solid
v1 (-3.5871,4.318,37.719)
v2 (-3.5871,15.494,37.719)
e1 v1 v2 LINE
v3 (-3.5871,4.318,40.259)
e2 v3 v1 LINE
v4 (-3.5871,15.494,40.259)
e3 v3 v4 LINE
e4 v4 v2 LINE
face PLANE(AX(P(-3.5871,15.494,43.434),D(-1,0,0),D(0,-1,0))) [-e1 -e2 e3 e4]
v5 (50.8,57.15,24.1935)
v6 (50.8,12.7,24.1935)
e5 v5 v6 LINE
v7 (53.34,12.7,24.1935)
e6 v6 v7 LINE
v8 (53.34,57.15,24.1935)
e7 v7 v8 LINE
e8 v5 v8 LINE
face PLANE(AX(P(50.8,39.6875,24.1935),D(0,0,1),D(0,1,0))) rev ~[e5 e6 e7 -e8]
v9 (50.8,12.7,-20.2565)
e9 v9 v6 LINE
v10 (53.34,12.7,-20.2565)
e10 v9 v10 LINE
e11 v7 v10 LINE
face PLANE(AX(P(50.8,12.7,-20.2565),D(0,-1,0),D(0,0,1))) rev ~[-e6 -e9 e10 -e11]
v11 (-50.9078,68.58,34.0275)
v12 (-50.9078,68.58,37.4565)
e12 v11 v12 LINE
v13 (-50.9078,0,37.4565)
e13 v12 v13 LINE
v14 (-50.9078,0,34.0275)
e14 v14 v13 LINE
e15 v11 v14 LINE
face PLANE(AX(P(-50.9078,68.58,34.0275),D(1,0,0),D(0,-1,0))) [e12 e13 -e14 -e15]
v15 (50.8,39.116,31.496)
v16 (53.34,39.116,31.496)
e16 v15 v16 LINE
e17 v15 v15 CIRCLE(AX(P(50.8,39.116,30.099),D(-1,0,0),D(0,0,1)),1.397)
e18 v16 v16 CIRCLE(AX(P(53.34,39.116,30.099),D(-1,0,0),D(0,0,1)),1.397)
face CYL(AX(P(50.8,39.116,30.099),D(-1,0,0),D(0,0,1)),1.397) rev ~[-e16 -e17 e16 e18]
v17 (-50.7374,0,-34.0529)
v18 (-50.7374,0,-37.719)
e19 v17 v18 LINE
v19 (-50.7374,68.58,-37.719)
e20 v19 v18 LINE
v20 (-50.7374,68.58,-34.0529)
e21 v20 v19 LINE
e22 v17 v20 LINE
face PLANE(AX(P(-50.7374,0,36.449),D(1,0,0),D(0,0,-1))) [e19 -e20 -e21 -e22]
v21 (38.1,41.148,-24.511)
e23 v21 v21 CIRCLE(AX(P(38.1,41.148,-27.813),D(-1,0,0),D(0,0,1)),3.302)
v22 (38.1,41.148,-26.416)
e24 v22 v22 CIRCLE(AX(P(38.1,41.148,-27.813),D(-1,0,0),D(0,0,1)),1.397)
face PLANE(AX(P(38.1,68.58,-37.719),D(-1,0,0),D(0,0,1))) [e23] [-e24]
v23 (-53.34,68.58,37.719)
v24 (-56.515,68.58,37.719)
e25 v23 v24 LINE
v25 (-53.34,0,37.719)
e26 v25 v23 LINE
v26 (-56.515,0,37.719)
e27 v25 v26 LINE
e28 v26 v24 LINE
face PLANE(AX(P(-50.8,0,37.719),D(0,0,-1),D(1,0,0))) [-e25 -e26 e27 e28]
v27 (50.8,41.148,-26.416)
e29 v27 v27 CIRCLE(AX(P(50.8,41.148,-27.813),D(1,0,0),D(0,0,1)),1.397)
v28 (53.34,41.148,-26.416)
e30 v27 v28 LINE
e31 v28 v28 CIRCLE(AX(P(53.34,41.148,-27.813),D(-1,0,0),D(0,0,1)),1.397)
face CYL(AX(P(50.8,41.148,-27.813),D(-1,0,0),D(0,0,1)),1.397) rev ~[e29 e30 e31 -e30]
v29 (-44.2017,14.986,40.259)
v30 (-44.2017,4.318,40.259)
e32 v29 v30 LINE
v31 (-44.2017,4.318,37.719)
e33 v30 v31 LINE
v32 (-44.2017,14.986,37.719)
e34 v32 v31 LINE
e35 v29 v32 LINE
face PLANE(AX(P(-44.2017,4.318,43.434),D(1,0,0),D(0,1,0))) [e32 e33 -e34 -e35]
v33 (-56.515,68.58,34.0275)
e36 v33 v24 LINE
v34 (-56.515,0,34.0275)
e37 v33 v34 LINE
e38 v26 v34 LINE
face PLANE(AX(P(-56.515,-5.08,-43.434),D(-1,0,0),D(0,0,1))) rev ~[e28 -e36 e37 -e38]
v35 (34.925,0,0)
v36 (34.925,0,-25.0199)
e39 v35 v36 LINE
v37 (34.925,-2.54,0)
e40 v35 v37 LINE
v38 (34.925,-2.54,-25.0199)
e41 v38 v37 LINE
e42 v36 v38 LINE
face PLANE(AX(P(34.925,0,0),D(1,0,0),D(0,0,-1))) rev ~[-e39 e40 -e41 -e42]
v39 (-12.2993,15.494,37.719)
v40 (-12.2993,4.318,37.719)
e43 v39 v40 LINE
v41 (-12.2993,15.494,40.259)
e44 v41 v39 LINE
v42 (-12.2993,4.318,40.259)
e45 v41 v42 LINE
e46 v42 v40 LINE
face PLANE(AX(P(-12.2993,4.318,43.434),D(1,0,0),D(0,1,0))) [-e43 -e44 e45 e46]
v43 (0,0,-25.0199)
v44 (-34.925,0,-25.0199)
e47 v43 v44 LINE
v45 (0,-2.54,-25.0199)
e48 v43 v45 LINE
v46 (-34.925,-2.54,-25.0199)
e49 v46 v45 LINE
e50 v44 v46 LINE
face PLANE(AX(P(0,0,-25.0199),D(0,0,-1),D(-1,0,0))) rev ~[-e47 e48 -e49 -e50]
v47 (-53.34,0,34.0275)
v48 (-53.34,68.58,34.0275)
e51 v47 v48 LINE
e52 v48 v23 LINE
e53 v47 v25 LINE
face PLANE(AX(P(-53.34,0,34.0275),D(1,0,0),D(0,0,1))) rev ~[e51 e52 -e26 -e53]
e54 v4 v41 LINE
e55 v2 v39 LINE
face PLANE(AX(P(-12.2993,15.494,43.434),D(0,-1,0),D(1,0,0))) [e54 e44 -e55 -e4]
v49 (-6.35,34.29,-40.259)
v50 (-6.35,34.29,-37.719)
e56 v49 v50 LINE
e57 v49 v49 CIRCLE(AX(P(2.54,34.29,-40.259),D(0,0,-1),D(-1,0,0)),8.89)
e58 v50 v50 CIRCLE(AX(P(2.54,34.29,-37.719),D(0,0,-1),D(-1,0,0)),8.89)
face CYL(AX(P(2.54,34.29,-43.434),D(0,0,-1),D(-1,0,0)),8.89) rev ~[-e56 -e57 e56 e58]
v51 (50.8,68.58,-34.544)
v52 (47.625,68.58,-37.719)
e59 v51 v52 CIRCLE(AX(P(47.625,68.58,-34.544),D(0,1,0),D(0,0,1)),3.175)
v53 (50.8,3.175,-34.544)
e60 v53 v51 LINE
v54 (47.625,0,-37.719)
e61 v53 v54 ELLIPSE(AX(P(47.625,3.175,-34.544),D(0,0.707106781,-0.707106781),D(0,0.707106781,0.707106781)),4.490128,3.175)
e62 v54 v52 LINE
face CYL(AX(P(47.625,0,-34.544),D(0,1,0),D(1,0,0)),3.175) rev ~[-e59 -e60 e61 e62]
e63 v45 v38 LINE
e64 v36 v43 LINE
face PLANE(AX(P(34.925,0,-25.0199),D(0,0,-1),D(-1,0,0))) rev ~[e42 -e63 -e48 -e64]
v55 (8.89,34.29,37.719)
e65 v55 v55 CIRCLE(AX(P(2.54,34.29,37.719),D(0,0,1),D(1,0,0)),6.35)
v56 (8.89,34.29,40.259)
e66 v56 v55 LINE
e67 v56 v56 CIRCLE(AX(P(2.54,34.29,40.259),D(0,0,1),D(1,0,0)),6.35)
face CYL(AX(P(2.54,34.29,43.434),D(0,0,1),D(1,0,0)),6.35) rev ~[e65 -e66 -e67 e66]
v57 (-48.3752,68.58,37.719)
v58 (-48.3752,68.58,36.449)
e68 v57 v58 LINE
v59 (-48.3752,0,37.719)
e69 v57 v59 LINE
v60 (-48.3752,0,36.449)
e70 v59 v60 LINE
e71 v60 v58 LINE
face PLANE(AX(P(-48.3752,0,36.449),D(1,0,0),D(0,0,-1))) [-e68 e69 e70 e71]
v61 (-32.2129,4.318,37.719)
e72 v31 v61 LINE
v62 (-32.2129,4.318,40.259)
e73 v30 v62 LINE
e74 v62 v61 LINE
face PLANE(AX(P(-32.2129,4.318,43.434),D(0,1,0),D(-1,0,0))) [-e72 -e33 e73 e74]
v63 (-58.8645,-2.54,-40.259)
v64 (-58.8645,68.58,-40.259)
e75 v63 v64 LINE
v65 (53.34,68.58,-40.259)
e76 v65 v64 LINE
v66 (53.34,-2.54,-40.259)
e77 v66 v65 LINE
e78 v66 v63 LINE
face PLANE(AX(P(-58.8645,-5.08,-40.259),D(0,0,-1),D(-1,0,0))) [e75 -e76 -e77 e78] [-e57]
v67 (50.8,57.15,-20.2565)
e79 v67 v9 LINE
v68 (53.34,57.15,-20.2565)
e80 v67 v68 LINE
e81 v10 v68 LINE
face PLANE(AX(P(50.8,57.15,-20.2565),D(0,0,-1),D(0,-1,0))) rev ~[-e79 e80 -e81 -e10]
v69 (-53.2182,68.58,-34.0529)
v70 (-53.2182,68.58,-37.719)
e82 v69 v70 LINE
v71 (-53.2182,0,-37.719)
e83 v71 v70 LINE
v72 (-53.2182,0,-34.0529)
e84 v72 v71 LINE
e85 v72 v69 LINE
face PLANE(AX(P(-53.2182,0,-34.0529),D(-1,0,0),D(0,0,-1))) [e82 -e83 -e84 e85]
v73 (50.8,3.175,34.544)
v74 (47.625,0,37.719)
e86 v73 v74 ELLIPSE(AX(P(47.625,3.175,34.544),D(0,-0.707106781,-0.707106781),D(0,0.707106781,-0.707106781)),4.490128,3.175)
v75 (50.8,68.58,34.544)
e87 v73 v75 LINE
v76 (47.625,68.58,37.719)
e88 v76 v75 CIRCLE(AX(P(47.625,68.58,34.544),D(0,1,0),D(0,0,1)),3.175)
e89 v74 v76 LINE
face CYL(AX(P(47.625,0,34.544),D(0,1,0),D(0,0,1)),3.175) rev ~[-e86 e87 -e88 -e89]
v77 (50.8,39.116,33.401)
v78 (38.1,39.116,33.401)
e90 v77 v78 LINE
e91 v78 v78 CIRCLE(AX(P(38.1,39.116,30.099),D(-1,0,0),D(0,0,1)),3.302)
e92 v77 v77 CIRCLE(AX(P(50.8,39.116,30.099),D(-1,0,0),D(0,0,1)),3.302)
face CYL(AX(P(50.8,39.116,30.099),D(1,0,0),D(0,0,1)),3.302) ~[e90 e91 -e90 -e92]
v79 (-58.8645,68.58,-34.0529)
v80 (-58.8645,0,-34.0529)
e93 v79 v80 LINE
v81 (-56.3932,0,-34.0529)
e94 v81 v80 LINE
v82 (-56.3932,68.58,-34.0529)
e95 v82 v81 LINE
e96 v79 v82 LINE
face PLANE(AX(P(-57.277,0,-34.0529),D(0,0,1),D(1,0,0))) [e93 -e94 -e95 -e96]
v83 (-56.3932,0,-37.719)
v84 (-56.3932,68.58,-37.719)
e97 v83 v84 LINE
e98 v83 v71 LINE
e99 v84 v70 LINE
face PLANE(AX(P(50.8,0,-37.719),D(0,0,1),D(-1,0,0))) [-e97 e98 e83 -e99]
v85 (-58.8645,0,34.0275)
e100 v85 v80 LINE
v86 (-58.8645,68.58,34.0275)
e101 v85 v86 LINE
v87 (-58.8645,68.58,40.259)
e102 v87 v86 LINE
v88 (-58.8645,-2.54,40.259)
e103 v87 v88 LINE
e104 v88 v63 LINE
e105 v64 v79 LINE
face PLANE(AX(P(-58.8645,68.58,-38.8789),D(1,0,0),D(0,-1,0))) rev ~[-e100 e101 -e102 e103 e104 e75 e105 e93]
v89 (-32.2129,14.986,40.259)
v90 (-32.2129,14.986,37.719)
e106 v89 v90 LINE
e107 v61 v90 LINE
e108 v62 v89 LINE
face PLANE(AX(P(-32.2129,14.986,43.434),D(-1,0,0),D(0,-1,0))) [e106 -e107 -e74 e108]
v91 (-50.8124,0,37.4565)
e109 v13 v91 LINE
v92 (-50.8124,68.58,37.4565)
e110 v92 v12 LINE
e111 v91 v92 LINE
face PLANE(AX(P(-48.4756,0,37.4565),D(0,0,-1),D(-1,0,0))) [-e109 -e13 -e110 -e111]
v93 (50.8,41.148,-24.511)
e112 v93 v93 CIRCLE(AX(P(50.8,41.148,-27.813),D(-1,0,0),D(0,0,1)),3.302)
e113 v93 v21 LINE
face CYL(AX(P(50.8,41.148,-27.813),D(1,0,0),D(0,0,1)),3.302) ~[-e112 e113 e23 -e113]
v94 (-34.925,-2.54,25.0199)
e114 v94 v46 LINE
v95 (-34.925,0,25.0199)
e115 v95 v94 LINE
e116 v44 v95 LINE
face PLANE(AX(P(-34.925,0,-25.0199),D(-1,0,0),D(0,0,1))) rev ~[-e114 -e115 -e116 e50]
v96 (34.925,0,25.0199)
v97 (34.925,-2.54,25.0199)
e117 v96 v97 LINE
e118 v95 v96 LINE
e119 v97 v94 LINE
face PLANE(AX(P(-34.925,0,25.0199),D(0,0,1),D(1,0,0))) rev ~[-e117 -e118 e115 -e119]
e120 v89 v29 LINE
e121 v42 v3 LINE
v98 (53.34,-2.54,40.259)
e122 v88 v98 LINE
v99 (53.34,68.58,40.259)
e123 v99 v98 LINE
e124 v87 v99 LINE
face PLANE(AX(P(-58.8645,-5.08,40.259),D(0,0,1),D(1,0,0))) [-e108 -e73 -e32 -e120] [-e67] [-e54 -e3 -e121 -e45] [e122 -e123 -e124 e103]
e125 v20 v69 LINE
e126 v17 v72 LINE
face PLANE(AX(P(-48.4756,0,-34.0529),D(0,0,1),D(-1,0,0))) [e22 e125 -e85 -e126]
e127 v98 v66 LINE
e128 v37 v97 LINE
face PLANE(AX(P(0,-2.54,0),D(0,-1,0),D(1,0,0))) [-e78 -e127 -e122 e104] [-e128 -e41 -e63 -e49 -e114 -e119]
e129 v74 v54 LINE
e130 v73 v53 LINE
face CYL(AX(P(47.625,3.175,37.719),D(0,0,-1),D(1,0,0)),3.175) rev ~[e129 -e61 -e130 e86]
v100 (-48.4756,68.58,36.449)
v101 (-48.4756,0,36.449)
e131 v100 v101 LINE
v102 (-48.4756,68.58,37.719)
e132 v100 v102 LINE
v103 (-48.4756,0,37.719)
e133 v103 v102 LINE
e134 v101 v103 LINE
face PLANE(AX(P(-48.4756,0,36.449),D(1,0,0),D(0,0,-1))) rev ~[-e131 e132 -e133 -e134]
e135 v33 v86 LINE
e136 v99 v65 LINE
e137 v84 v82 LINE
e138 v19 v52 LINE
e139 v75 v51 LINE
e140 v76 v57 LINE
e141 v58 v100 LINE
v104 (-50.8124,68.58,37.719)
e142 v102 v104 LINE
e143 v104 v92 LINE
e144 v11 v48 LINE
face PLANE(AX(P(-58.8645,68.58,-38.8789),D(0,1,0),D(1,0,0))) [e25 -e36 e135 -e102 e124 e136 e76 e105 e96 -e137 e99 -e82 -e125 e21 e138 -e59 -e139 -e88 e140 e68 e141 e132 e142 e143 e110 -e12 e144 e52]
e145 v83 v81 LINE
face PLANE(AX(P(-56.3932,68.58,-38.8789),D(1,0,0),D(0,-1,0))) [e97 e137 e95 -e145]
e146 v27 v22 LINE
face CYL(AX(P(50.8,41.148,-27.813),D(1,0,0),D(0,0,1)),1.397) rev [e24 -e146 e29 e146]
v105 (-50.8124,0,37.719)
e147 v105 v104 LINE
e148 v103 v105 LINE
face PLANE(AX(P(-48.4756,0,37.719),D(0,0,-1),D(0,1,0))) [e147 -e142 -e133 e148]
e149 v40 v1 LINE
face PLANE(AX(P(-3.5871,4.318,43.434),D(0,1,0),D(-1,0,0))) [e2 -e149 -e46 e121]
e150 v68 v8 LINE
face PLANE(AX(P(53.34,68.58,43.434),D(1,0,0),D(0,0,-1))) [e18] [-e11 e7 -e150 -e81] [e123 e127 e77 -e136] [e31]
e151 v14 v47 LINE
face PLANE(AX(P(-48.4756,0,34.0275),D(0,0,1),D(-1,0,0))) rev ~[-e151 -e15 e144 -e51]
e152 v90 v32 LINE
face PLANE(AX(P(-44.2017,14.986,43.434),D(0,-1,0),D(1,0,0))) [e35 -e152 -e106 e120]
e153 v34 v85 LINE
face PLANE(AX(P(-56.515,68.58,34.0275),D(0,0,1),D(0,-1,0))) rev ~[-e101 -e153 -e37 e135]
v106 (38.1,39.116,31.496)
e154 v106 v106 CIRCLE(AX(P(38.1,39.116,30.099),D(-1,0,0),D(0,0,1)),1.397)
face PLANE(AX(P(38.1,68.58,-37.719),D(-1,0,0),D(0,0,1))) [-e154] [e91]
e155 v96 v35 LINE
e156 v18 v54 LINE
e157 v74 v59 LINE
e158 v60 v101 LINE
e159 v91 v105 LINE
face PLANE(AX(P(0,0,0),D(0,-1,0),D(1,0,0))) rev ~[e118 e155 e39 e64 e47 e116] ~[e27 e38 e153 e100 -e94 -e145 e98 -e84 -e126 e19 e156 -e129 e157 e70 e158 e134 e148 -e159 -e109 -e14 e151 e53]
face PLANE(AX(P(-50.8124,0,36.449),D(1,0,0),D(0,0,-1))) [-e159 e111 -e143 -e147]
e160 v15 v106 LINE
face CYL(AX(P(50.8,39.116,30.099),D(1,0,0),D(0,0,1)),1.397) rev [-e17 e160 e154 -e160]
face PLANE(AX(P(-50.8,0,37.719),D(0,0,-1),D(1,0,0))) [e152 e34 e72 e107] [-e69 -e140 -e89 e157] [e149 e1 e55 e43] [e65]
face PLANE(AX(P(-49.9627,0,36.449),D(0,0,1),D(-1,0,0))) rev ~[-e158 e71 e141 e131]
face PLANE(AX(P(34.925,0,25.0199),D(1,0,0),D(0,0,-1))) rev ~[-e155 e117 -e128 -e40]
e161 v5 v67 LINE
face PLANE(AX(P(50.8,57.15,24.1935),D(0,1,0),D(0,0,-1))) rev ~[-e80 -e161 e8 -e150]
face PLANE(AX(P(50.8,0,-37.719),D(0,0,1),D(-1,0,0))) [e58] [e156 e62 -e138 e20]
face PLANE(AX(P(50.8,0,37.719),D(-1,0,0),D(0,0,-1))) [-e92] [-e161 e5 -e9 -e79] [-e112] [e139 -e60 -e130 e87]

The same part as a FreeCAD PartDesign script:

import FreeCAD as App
import Part
import Sketcher
Q = App.Units.Quantity


def edges_at(feature, points):
    """Names of the edges that pass closest to the given points."""
    edges = feature.Shape.Edges
    near = lambda p: min(range(len(edges)), key=lambda i: edges[i].distToShape(Part.Vertex(*p))[0])
    return sorted({f"Edge{near(p) + 1}" for p in points})


def add_polygon(sketch, points):
    """Adds a closed chain of lines whose ends are joined by coincident constraints."""
    first, n = sketch.GeometryCount, len(points)
    for a, b in zip(points, points[1:] + points[:1]):
        sketch.addGeometry(Part.LineSegment(App.Vector(*a, 0), App.Vector(*b, 0)), False)
    for i in range(n):
        sketch.addConstraint(Sketcher.Constraint("Coincident", first + i, 2, first + (i + 1) % n, 1))

doc = App.newDocument("Part")
body = doc.addObject("PartDesign::Body", "Body")

sketch1 = body.newObject("Sketcher::SketchObject", "Sketch")
sketch1.AttachmentSupport = (doc.getObject("XZ_Plane"), [""])
sketch1.MapMode = "FlatFace"
add_polygon(sketch1, [(-57, -43), (-57, 43), (57, 43), (57, -43)])
add_polygon(sketch1, [(51, 38), (-51, 38), (-51, -38), (51, -38)])
sketch1.addConstraint(Sketcher.Constraint("Vertical", 0))
sketch1.addConstraint(Sketcher.Constraint("Horizontal", 1))
sketch1.addConstraint(Sketcher.Constraint("Vertical", 2))
sketch1.addConstraint(Sketcher.Constraint("Horizontal", 3))
sketch1.addConstraint(Sketcher.Constraint("Horizontal", 4))
sketch1.addConstraint(Sketcher.Constraint("Vertical", 5))
sketch1.addConstraint(Sketcher.Constraint("Horizontal", 6))
sketch1.addConstraint(Sketcher.Constraint("Vertical", 7))
sketch1.addConstraint(Sketcher.Constraint("Symmetric", 0, 2, 2, 2, -1, 1))
sketch1.addConstraint(Sketcher.Constraint("Symmetric", 4, 2, 6, 2, -1, 1))
sketch1.addConstraint(Sketcher.Constraint("DistanceX", 4, 2, 4, 1, Q("4 in")))
sketch1.addConstraint(Sketcher.Constraint("DistanceX", 1, 1, 1, 2, Q("4.45 in")))
sketch1.addConstraint(Sketcher.Constraint("DistanceY", 0, 1, 0, 2, Q("3.42 in")))
sketch1.addConstraint(Sketcher.Constraint("DistanceY", 5, 2, 5, 1, Q("2.97 in")))
pad1 = body.newObject("PartDesign::Pad", "Pad")
pad1.Profile = sketch1
pad1.Length = Q("2.7 in")
pad1.Reversed = True

sketch2 = body.newObject("Sketcher::SketchObject", "Sketch001")
sketch2.AttachmentSupport = (doc.getObject("XY_Plane"), [""])
sketch2.MapMode = "FlatFace"
sketch2.AttachmentOffset = App.Placement(App.Vector(0, 0, 1.71 * 25.4), App.Rotation())
add_polygon(sketch2, [(-12, 15), (-12, 4), (-4, 4), (-4, 15)])
add_polygon(sketch2, [(-44, 15), (-44, 4), (-32, 4), (-32, 15)])
sketch2.addConstraint(Sketcher.Constraint("Vertical", 0))
sketch2.addConstraint(Sketcher.Constraint("Horizontal", 1))
sketch2.addConstraint(Sketcher.Constraint("Vertical", 2))
sketch2.addConstraint(Sketcher.Constraint("Horizontal", 3))
sketch2.addConstraint(Sketcher.Constraint("Vertical", 4))
sketch2.addConstraint(Sketcher.Constraint("Horizontal", 5))
sketch2.addConstraint(Sketcher.Constraint("Vertical", 6))
sketch2.addConstraint(Sketcher.Constraint("Horizontal", 7))
sketch2.addConstraint(Sketcher.Constraint("Horizontal", 1, 2, 4, 2))
sketch2.addConstraint(Sketcher.Constraint("DistanceY", 0, 2, 0, 1, Q("0.44 in")))
sketch2.addConstraint(Sketcher.Constraint("DistanceY", 4, 2, 4, 1, Q("0.42 in")))
sketch2.addConstraint(Sketcher.Constraint("DistanceX", 1, 1, 1, 2, Q("0.343 in")))
sketch2.addConstraint(Sketcher.Constraint("DistanceX", 5, 1, 5, 2, Q("0.472 in")))
sketch2.addConstraint(Sketcher.Constraint("DistanceY", -1, 1, 0, 2, Q("0.17 in")))
sketch2.addConstraint(Sketcher.Constraint("DistanceX", 5, 2, 0, 2, Q("0.784 in")))
sketch2.addConstraint(Sketcher.Constraint("DistanceX", 0, 2, -1, 1, Q("12.2993 mm")))
pocket1 = body.newObject("PartDesign::Pocket", "Pocket")
pocket1.Profile = sketch2
pocket1.Length = Q("2.7 in")

sketch3 = body.newObject("Sketcher::SketchObject", "Sketch002")
sketch3.AttachmentSupport = (doc.getObject("YZ_Plane"), [""])
sketch3.MapMode = "FlatFace"
sketch3.AttachmentOffset = App.Placement(App.Vector(0, 0, 2 * 25.4), App.Rotation())
sketch3.addGeometry(Part.Circle(App.Vector(41.1, -27.8, 0), App.Vector(0, 0, 1), 1.4), False)
sketch3.addGeometry(Part.Circle(App.Vector(39.1, 30.1, 0), App.Vector(0, 0, 1), 1.4), False)
sketch3.addConstraint(Sketcher.Constraint("Equal", 0, 1))
sketch3.addConstraint(Sketcher.Constraint("Diameter", 0, Q("0.11 in")))
sketch3.addConstraint(Sketcher.Constraint("DistanceX", -1, 1, 0, 3, Q("1.62 in")))
sketch3.addConstraint(Sketcher.Constraint("DistanceX", -1, 1, 1, 3, Q("1.54 in")))
sketch3.addConstraint(Sketcher.Constraint("DistanceY", 0, 3, 1, 3, Q("2.28 in")))
sketch3.addConstraint(Sketcher.Constraint("DistanceY", 0, 3, -1, 1, Q("1.095 in")))
pocket2 = body.newObject("PartDesign::Pocket", "Pocket001")
pocket2.Profile = sketch3
pocket2.Length = Q("2.7 in")
pocket2.Reversed = True

sketch4 = body.newObject("Sketcher::SketchObject", "Sketch003")
sketch4.AttachmentSupport = (doc.getObject("XY_Plane"), [""])
sketch4.MapMode = "FlatFace"
sketch4.AttachmentOffset = App.Placement(App.Vector(0, 0, 1.71 * 25.4), App.Rotation())
sketch4.addGeometry(Part.Circle(App.Vector(3, 34, 0), App.Vector(0, 0, 1), 6), False)
sketch4.addConstraint(Sketcher.Constraint("Diameter", 0, Q("0.5 in")))
sketch4.addConstraint(Sketcher.Constraint("DistanceX", -1, 1, 0, 3, Q("0.1 in")))
sketch4.addConstraint(Sketcher.Constraint("DistanceY", -1, 1, 0, 3, Q("1.35 in")))
pocket3 = body.newObject("PartDesign::Pocket", "Pocket002")
pocket3.Profile = sketch4
pocket3.Length = Q("4.325 in")

sketch5 = body.newObject("Sketcher::SketchObject", "Sketch004")
sketch5.AttachmentSupport = (doc.getObject("XZ_Plane"), [""])
sketch5.MapMode = "FlatFace"
add_polygon(sketch5, [(57, 43), (-57, 43), (-57, -43), (57, -43)])
sketch5.addConstraint(Sketcher.Constraint("Horizontal", 0))
sketch5.addConstraint(Sketcher.Constraint("Vertical", 1))
sketch5.addConstraint(Sketcher.Constraint("Horizontal", 2))
sketch5.addConstraint(Sketcher.Constraint("Vertical", 3))
sketch5.addConstraint(Sketcher.Constraint("Symmetric", 0, 2, 2, 2, -1, 1))
sketch5.addConstraint(Sketcher.Constraint("DistanceX", 0, 2, 0, 1, Q("4.45 in")))
sketch5.addConstraint(Sketcher.Constraint("DistanceY", 1, 2, 1, 1, Q("3.42 in")))
pad2 = body.newObject("PartDesign::Pad", "Pad001")
pad2.Profile = sketch5
pad2.Length = Q("0.2 in")

sketch6 = body.newObject("Sketcher::SketchObject", "Sketch005")
sketch6.AttachmentSupport = (doc.getObject("YZ_Plane"), [""])
sketch6.MapMode = "FlatFace"
sketch6.AttachmentOffset = App.Placement(App.Vector(0, 0, 2 * 25.4), App.Rotation())
sketch6.addGeometry(Part.Circle(App.Vector(39.1, 30.1, 0), App.Vector(0, 0, 1), 3.3), False)
sketch6.addGeometry(Part.Circle(App.Vector(39.1, 30.1, 0), App.Vector(0, 0, 1), 1.4), False)
sketch6.addGeometry(Part.Circle(App.Vector(41.1, -27.8, 0), App.Vector(0, 0, 1), 3.3), False)
sketch6.addGeometry(Part.Circle(App.Vector(41.1, -27.8, 0), App.Vector(0, 0, 1), 1.4), False)
sketch6.addConstraint(Sketcher.Constraint("Coincident", 1, 3, 0, 3))
sketch6.addConstraint(Sketcher.Constraint("Coincident", 3, 3, 2, 3))
sketch6.addConstraint(Sketcher.Constraint("Equal", 0, 2))
sketch6.addConstraint(Sketcher.Constraint("Equal", 1, 3))
sketch6.addConstraint(Sketcher.Constraint("Diameter", 0, Q("0.26 in")))
sketch6.addConstraint(Sketcher.Constraint("Diameter", 1, Q("0.11 in")))
sketch6.addConstraint(Sketcher.Constraint("DistanceX", -1, 1, 0, 3, Q("1.54 in")))
sketch6.addConstraint(Sketcher.Constraint("DistanceX", -1, 1, 2, 3, Q("1.62 in")))
sketch6.addConstraint(Sketcher.Constraint("DistanceY", 2, 3, 0, 3, Q("2.28 in")))
sketch6.addConstraint(Sketcher.Constraint("DistanceY", -1, 1, 0, 3, Q("1.185 in")))
pad3 = body.newObject("PartDesign::Pad", "Pad002")
pad3.Profile = sketch6
pad3.Length = Q("0.5 in")
pad3.Reversed = True

sketch7 = body.newObject("Sketcher::SketchObject", "Sketch006")
sketch7.AttachmentSupport = (doc.getObject("YZ_Plane"), [""])
sketch7.MapMode = "FlatFace"
sketch7.AttachmentOffset = App.Placement(App.Vector(0, 0, -2.225 * 25.4), App.Rotation())
add_polygon(sketch7, [(69, -38), (0, -38), (0, 38), (69, 38)])
sketch7.addConstraint(Sketcher.Constraint("Horizontal", 0))
sketch7.addConstraint(Sketcher.Constraint("Vertical", 1))
sketch7.addConstraint(Sketcher.Constraint("Horizontal", 2))
sketch7.addConstraint(Sketcher.Constraint("Vertical", 3))
sketch7.addConstraint(Sketcher.Constraint("Symmetric", 0, 2, 1, 2, -1, 1))
sketch7.addConstraint(Sketcher.Constraint("DistanceX", 0, 2, 0, 1, Q("2.7 in")))
sketch7.addConstraint(Sketcher.Constraint("DistanceY", 1, 1, 1, 2, Q("2.97 in")))
pocket4 = body.newObject("PartDesign::Pocket", "Pocket003")
pocket4.Profile = sketch7
pocket4.Length = Q("0.5 in")
pocket4.Reversed = True
doc.recompute()

fillet = body.newObject("PartDesign::Fillet", "Fillet")
fillet.Base = (pocket4, edges_at(pocket4, [(50.8, 34.29, -37.719), (50.8, 0, 0), (50.8, 34.29, 37.719)]))
fillet.Radius = Q("0.125 in")

sketch8 = body.newObject("Sketcher::SketchObject", "Sketch007")
sketch8.AttachmentSupport = (doc.getObject("XY_Plane"), [""])
sketch8.MapMode = "FlatFace"
sketch8.AttachmentOffset = App.Placement(App.Vector(0, 0, -1.71 * 25.4), App.Rotation())
sketch8.addGeometry(Part.Circle(App.Vector(3, 34, 0), App.Vector(0, 0, 1), 9), False)
sketch8.addGeometry(Part.Circle(App.Vector(3, 34, 0), App.Vector(0, 0, 1), 6), False)
sketch8.addConstraint(Sketcher.Constraint("Coincident", 1, 3, 0, 3))
sketch8.addConstraint(Sketcher.Constraint("Diameter", 0, Q("0.7 in")))
sketch8.addConstraint(Sketcher.Constraint("Diameter", 1, Q("0.5 in")))
sketch8.addConstraint(Sketcher.Constraint("DistanceX", -1, 1, 0, 3, Q("0.1 in")))
sketch8.addConstraint(Sketcher.Constraint("DistanceY", -1, 1, 0, 3, Q("1.35 in")))
pocket5 = body.newObject("PartDesign::Pocket", "Pocket004")
pocket5.Profile = sketch8
pocket5.Length = Q("0.5 in")
pocket5.Reversed = True

sketch9 = body.newObject("Sketcher::SketchObject", "Sketch008")
sketch9.AttachmentSupport = (doc.getObject("XZ_Plane"), [""])
sketch9.MapMode = "FlatFace"
add_polygon(sketch9, [(-50, -37.7), (-50.7, -37.7), (-50.7, -36.4), (-50, -36.4)])
add_polygon(sketch9, [(-50.7, 36.4), (-50.7, 37.7), (-50, 37.7), (-50, 36.4)])
sketch9.addConstraint(Sketcher.Constraint("Horizontal", 0))
sketch9.addConstraint(Sketcher.Constraint("Vertical", 1))
sketch9.addConstraint(Sketcher.Constraint("Horizontal", 2))
sketch9.addConstraint(Sketcher.Constraint("Vertical", 3))
sketch9.addConstraint(Sketcher.Constraint("Vertical", 4))
sketch9.addConstraint(Sketcher.Constraint("Horizontal", 5))
sketch9.addConstraint(Sketcher.Constraint("Vertical", 6))
sketch9.addConstraint(Sketcher.Constraint("Horizontal", 7))
sketch9.addConstraint(Sketcher.Constraint("Symmetric", 0, 2, 4, 2, -1))
sketch9.addConstraint(Sketcher.Constraint("Symmetric", 2, 2, 6, 2, -1))
sketch9.addConstraint(Sketcher.Constraint("DistanceY", 1, 1, 1, 2, Q("0.05 in")))
sketch9.addConstraint(Sketcher.Constraint("DistanceY", 1, 2, 4, 2, Q("2.92 in")))
sketch9.addConstraint(Sketcher.Constraint("DistanceX", 0, 2, 0, 1, Q("0.7562 mm")))
sketch9.addConstraint(Sketcher.Constraint("DistanceX", 0, 2, -1, 1, Q("1.9968 in")))
pad4 = body.newObject("PartDesign::Pad", "Pad003")
pad4.Profile = sketch9
pad4.Length = Q("2.7 in")
pad4.Reversed = True

sketch10 = body.newObject("Sketcher::SketchObject", "Sketch009")
sketch10.AttachmentSupport = (doc.getObject("YZ_Plane"), [""])
sketch10.MapMode = "FlatFace"
sketch10.AttachmentOffset = App.Placement(App.Vector(0, 0, -2.225 * 25.4), App.Rotation())
add_polygon(sketch10, [(68.6, -38.9), (68.6, -43.4), (-5.1, -43.4), (-5.1, 43.4), (68.6, 43.4), (68.6, 34), (0, 34), (0, -38.9)])
sketch10.addConstraint(Sketcher.Constraint("Vertical", 0))
sketch10.addConstraint(Sketcher.Constraint("Horizontal", 1))
sketch10.addConstraint(Sketcher.Constraint("Vertical", 2))
sketch10.addConstraint(Sketcher.Constraint("Horizontal", 3))
sketch10.addConstraint(Sketcher.Constraint("Vertical", 4))
sketch10.addConstraint(Sketcher.Constraint("Horizontal", 5))
sketch10.addConstraint(Sketcher.Constraint("Vertical", 6))
sketch10.addConstraint(Sketcher.Constraint("Horizontal", 7))
sketch10.addConstraint(Sketcher.Constraint("Symmetric", 0, 2, 3, 2, -1))
sketch10.addConstraint(Sketcher.Constraint("PointOnObject", 5, 2, -2))
sketch10.addConstraint(Sketcher.Constraint("DistanceX", 1, 2, 1, 1, Q("2.9 in")))
sketch10.addConstraint(Sketcher.Constraint("DistanceX", 5, 2, 5, 1, Q("2.7 in")))
sketch10.addConstraint(Sketcher.Constraint("DistanceY", 2, 1, 2, 2, Q("3.42 in")))
sketch10.addConstraint(Sketcher.Constraint("DistanceY", 6, 2, 6, 1, Q("2.8694 in")))
sketch10.addConstraint(Sketcher.Constraint("DistanceY", 0, 2, 0, 1, Q("4.579 mm")))
pad5 = body.newObject("PartDesign::Pad", "Pad004")
pad5.Profile = sketch10
pad5.Length = Q("0.03 in")
pad5.Reversed = True

sketch11 = body.newObject("Sketcher::SketchObject", "Sketch010")
sketch11.AttachmentSupport = (doc.getObject("YZ_Plane"), [""])
sketch11.MapMode = "FlatFace"
sketch11.AttachmentOffset = App.Placement(App.Vector(0, 0, -2.255 * 25.4), App.Rotation())
add_polygon(sketch11, [(68.6, -43.4), (-5.1, -43.4), (-5.1, 43.4), (68.6, 43.4), (68.6, 34), (0, 34), (0, -38.9), (68.6, -38.9)])
sketch11.addConstraint(Sketcher.Constraint("Horizontal", 0))
sketch11.addConstraint(Sketcher.Constraint("Vertical", 1))
sketch11.addConstraint(Sketcher.Constraint("Horizontal", 2))
sketch11.addConstraint(Sketcher.Constraint("Vertical", 3))
sketch11.addConstraint(Sketcher.Constraint("Horizontal", 4))
sketch11.addConstraint(Sketcher.Constraint("Vertical", 5))
sketch11.addConstraint(Sketcher.Constraint("Horizontal", 6))
sketch11.addConstraint(Sketcher.Constraint("Vertical", 7))
sketch11.addConstraint(Sketcher.Constraint("Symmetric", 2, 2, 7, 2, -1))
sketch11.addConstraint(Sketcher.Constraint("PointOnObject", 4, 2, -2))
sketch11.addConstraint(Sketcher.Constraint("DistanceX", 0, 2, 0, 1, Q("2.9 in")))
sketch11.addConstraint(Sketcher.Constraint("DistanceX", 4, 2, 4, 1, Q("2.7 in")))
sketch11.addConstraint(Sketcher.Constraint("DistanceY", 1, 1, 1, 2, Q("3.42 in")))
sketch11.addConstraint(Sketcher.Constraint("DistanceY", 3, 2, 3, 1, Q("9.4065 mm")))
sketch11.addConstraint(Sketcher.Constraint("DistanceY", 5, 2, 5, 1, Q("72.9064 mm")))
pad6 = body.newObject("PartDesign::Pad", "Pad005")
pad6.Profile = sketch11
pad6.Length = Q("0.0625 in")
pad6.Reversed = True

sketch12 = body.newObject("Sketcher::SketchObject", "Sketch011")
sketch12.AttachmentSupport = (doc.getObject("YZ_Plane"), [""])
sketch12.MapMode = "FlatFace"
sketch12.AttachmentOffset = App.Placement(App.Vector(0, 0, -49.9627), App.Rotation())
add_polygon(sketch12, [(68.6, 36.4), (68.6, 37.7), (0, 37.7), (0, 36.4)])
add_polygon(sketch12, [(0, -36.4), (0, -37.7), (68.6, -37.7), (68.6, -36.4)])
sketch12.addConstraint(Sketcher.Constraint("Vertical", 0))
sketch12.addConstraint(Sketcher.Constraint("Horizontal", 1))
sketch12.addConstraint(Sketcher.Constraint("Vertical", 2))
sketch12.addConstraint(Sketcher.Constraint("Horizontal", 3))
sketch12.addConstraint(Sketcher.Constraint("Vertical", 4))
sketch12.addConstraint(Sketcher.Constraint("Horizontal", 5))
sketch12.addConstraint(Sketcher.Constraint("Vertical", 6))
sketch12.addConstraint(Sketcher.Constraint("Horizontal", 7))
sketch12.addConstraint(Sketcher.Constraint("Symmetric", 1, 2, 4, 2, -1, 1))
sketch12.addConstraint(Sketcher.Constraint("Symmetric", 3, 2, 6, 2, -1))
sketch12.addConstraint(Sketcher.Constraint("PointOnObject", 1, 2, -2))
sketch12.addConstraint(Sketcher.Constraint("DistanceX", 1, 2, 1, 1, Q("2.7 in")))
sketch12.addConstraint(Sketcher.Constraint("DistanceY", 0, 1, 0, 2, Q("0.05 in")))
sketch12.addConstraint(Sketcher.Constraint("DistanceY", 4, 2, 2, 2, Q("2.92 in")))
pad7 = body.newObject("PartDesign::Pad", "Pad006")
pad7.Profile = sketch12
pad7.Length = Q("0.0625 in")

sketch13 = body.newObject("Sketcher::SketchObject", "Sketch012")
sketch13.AttachmentSupport = (doc.getObject("XY_Plane"), [""])
sketch13.MapMode = "FlatFace"
sketch13.AttachmentOffset = App.Placement(App.Vector(0, 0, -38.8789), App.Rotation())
add_polygon(sketch13, [(-56.4, 68.6), (-58.9, 68.6), (-58.9, 0), (-56.4, 0)])
sketch13.addConstraint(Sketcher.Constraint("Horizontal", 0))
sketch13.addConstraint(Sketcher.Constraint("Vertical", 1))
sketch13.addConstraint(Sketcher.Constraint("Horizontal", 2))
sketch13.addConstraint(Sketcher.Constraint("Vertical", 3))
sketch13.addConstraint(Sketcher.Constraint("PointOnObject", 1, 2, -1))
sketch13.addConstraint(Sketcher.Constraint("DistanceY", 1, 2, 1, 1, Q("2.7 in")))
sketch13.addConstraint(Sketcher.Constraint("DistanceX", 0, 2, 0, 1, Q("0.0973 in")))
sketch13.addConstraint(Sketcher.Constraint("DistanceX", 0, 2, -1, 1, Q("2.3175 in")))
pad8 = body.newObject("PartDesign::Pad", "Pad007")
pad8.Profile = sketch13
pad8.Length = Q("0.19 in")

sketch14 = body.newObject("Sketcher::SketchObject", "Sketch013")
sketch14.AttachmentSupport = (doc.getObject("XZ_Plane"), [""])
sketch14.MapMode = "FlatFace"
add_polygon(sketch14, [(-53.3, 37.7), (-48.5, 37.7), (-48.5, 34), (-53.3, 34)])
add_polygon(sketch14, [(-48.5, -37.7), (-53.2, -37.7), (-53.2, -34.1), (-48.5, -34.1)])
sketch14.addConstraint(Sketcher.Constraint("Horizontal", 0))
sketch14.addConstraint(Sketcher.Constraint("Vertical", 1))
sketch14.addConstraint(Sketcher.Constraint("Horizontal", 2))
sketch14.addConstraint(Sketcher.Constraint("Vertical", 3))
sketch14.addConstraint(Sketcher.Constraint("Horizontal", 4))
sketch14.addConstraint(Sketcher.Constraint("Vertical", 5))
sketch14.addConstraint(Sketcher.Constraint("Horizontal", 6))
sketch14.addConstraint(Sketcher.Constraint("Vertical", 7))
sketch14.addConstraint(Sketcher.Constraint("Symmetric", 0, 2, 7, 2, -1))
sketch14.addConstraint(Sketcher.Constraint("DistanceX", 2, 2, -1, 1, Q("2.1 in")))
sketch14.addConstraint(Sketcher.Constraint("DistanceY", 4, 2, 3, 2, Q("2.97 in")))
sketch14.addConstraint(Sketcher.Constraint("DistanceX", 0, 1, 0, 2, Q("0.1915 in")))
sketch14.addConstraint(Sketcher.Constraint("DistanceX", 4, 2, 4, 1, Q("4.7426 mm")))
sketch14.addConstraint(Sketcher.Constraint("DistanceY", 1, 2, 1, 1, Q("3.6915 mm")))
sketch14.addConstraint(Sketcher.Constraint("DistanceY", 5, 1, 5, 2, Q("3.666 mm")))
pad9 = body.newObject("PartDesign::Pad", "Pad008")
pad9.Profile = sketch14
pad9.Length = Q("2.7 in")
pad9.Reversed = True

sketch15 = body.newObject("Sketcher::SketchObject", "Sketch014")
sketch15.AttachmentSupport = (doc.getObject("YZ_Plane"), [""])
sketch15.MapMode = "FlatFace"
sketch15.AttachmentOffset = App.Placement(App.Vector(0, 0, 2.225 * 25.4), App.Rotation())
add_polygon(sketch15, [(97, -98), (97, 98), (-27, 98), (-27, -98)])
sketch15.addConstraint(Sketcher.Constraint("Vertical", 0))
sketch15.addConstraint(Sketcher.Constraint("Horizontal", 1))
sketch15.addConstraint(Sketcher.Constraint("Vertical", 2))
sketch15.addConstraint(Sketcher.Constraint("Horizontal", 3))
sketch15.addConstraint(Sketcher.Constraint("DistanceX", 1, 2, 1, 1, Q("4.875 in")))
sketch15.addConstraint(Sketcher.Constraint("DistanceY", 0, 1, 0, 2, Q("7.705 in")))
sketch15.addConstraint(Sketcher.Constraint("DistanceX", 1, 2, -1, 1, Q("1.05 in")))
sketch15.addConstraint(Sketcher.Constraint("DistanceY", -1, 1, 0, 2, Q("3.8525 in")))
pocket6 = body.newObject("PartDesign::Pocket", "Pocket005")
pocket6.Profile = sketch15
pocket6.Length = Q("0.125 in")

sketch16 = body.newObject("Sketcher::SketchObject", "Sketch015")
sketch16.AttachmentSupport = (doc.getObject("XY_Plane"), [""])
sketch16.MapMode = "FlatFace"
sketch16.AttachmentOffset = App.Placement(App.Vector(0, 0, -1.71 * 25.4), App.Rotation())
add_polygon(sketch16, [(-97, -26), (-97, 92), (74, 92), (74, -26)])
sketch16.addConstraint(Sketcher.Constraint("Vertical", 0))
sketch16.addConstraint(Sketcher.Constraint("Horizontal", 1))
sketch16.addConstraint(Sketcher.Constraint("Vertical", 2))
sketch16.addConstraint(Sketcher.Constraint("Horizontal", 3))
sketch16.addConstraint(Sketcher.Constraint("DistanceX", 1, 1, 1, 2, Q("6.75 in")))
sketch16.addConstraint(Sketcher.Constraint("DistanceY", 0, 1, 0, 2, Q("4.625 in")))
sketch16.addConstraint(Sketcher.Constraint("DistanceX", 0, 2, -1, 1, Q("3.8175 in")))
sketch16.addConstraint(Sketcher.Constraint("DistanceY", -1, 1, 0, 2, Q("3.6125 in")))
pocket7 = body.newObject("PartDesign::Pocket", "Pocket006")
pocket7.Profile = sketch16
pocket7.Length = Q("0.125 in")
pocket7.Reversed = True

sketch17 = body.newObject("Sketcher::SketchObject", "Sketch016")
sketch17.AttachmentSupport = (doc.getObject("XY_Plane"), [""])
sketch17.MapMode = "FlatFace"
sketch17.AttachmentOffset = App.Placement(App.Vector(0, 0, 1.71 * 25.4), App.Rotation())
add_polygon(sketch17, [(-97, 104), (-97, -35), (71, -35), (71, 104)])
sketch17.addConstraint(Sketcher.Constraint("Vertical", 0))
sketch17.addConstraint(Sketcher.Constraint("Horizontal", 1))
sketch17.addConstraint(Sketcher.Constraint("Vertical", 2))
sketch17.addConstraint(Sketcher.Constraint("Horizontal", 3))
sketch17.addConstraint(Sketcher.Constraint("DistanceY", 0, 2, 0, 1, Q("5.5 in")))
sketch17.addConstraint(Sketcher.Constraint("DistanceX", 1, 1, 1, 2, Q("6.625 in")))
sketch17.addConstraint(Sketcher.Constraint("DistanceX", 0, 2, -1, 1, Q("3.8175 in")))
sketch17.addConstraint(Sketcher.Constraint("DistanceY", 0, 2, -1, 1, Q("1.3875 in")))
pocket8 = body.newObject("PartDesign::Pocket", "Pocket007")
pocket8.Profile = sketch17
pocket8.Length = Q("0.125 in")

sketch18 = body.newObject("Sketcher::SketchObject", "Sketch017")
sketch18.AttachmentSupport = (doc.getObject("XZ_Plane"), [""])
sketch18.MapMode = "FlatFace"
sketch18.AttachmentOffset = App.Placement(App.Vector(0, 0, 0.2 * 25.4), App.Rotation())
add_polygon(sketch18, [(73, -84), (73, 84), (-73, 84), (-73, -84)])
sketch18.addConstraint(Sketcher.Constraint("Vertical", 0))
sketch18.addConstraint(Sketcher.Constraint("Horizontal", 1))
sketch18.addConstraint(Sketcher.Constraint("Vertical", 2))
sketch18.addConstraint(Sketcher.Constraint("Horizontal", 3))
sketch18.addConstraint(Sketcher.Constraint("Symmetric", 0, 2, 2, 2, -1, 1))
sketch18.addConstraint(Sketcher.Constraint("DistanceX", 1, 2, 1, 1, Q("5.75 in")))
sketch18.addConstraint(Sketcher.Constraint("DistanceY", 0, 1, 0, 2, Q("6.625 in")))
pocket9 = body.newObject("PartDesign::Pocket", "Pocket008")
pocket9.Profile = sketch18
pocket9.Length = Q("0.1 in")

sketch19 = body.newObject("Sketcher::SketchObject", "Sketch018")
sketch19.AttachmentSupport = (doc.getObject("YZ_Plane"), [""])
sketch19.MapMode = "FlatFace"
sketch19.AttachmentOffset = App.Placement(App.Vector(0, 0, -1.9084882 * 25.4), App.Rotation())
add_polygon(sketch19, [(68.6, 34.1), (68.6, 37.7), (0, 37.7), (0, 34.1)])
sketch19.addConstraint(Sketcher.Constraint("Vertical", 0))
sketch19.addConstraint(Sketcher.Constraint("Horizontal", 1))
sketch19.addConstraint(Sketcher.Constraint("Vertical", 2))
sketch19.addConstraint(Sketcher.Constraint("Horizontal", 3))
sketch19.addConstraint(Sketcher.Constraint("PointOnObject", 1, 2, -2))
sketch19.addConstraint(Sketcher.Constraint("DistanceX", 1, 2, 1, 1, Q("2.7 in")))
sketch19.addConstraint(Sketcher.Constraint("DistanceY", -1, 1, 0, 2, Q("1.485 in")))
sketch19.addConstraint(Sketcher.Constraint("DistanceY", 0, 1, 0, 2, Q("3.6583 mm")))
pocket10 = body.newObject("PartDesign::Pocket", "Pocket009")
pocket10.Profile = sketch19
pocket10.Length = Q("0.092 in")

sketch20 = body.newObject("Sketcher::SketchObject", "Sketch019")
sketch20.AttachmentSupport = (doc.getObject("XY_Plane"), [""])
sketch20.MapMode = "FlatFace"
sketch20.AttachmentOffset = App.Placement(App.Vector(0, 0, 34.0275), App.Rotation())
add_polygon(sketch20, [(-48.5, 0), (-50.9, 0), (-50.9, 68.6), (-48.5, 68.6)])
sketch20.addConstraint(Sketcher.Constraint("Horizontal", 0))
sketch20.addConstraint(Sketcher.Constraint("Vertical", 1))
sketch20.addConstraint(Sketcher.Constraint("Horizontal", 2))
sketch20.addConstraint(Sketcher.Constraint("Vertical", 3))
sketch20.addConstraint(Sketcher.Constraint("PointOnObject", 0, 2, -1))
sketch20.addConstraint(Sketcher.Constraint("DistanceY", 1, 1, 1, 2, Q("2.7 in")))
sketch20.addConstraint(Sketcher.Constraint("DistanceX", 0, 2, 0, 1, Q("2.4322 mm")))
sketch20.addConstraint(Sketcher.Constraint("DistanceX", 2, 2, -1, 1, Q("1.9085 in")))
pocket11 = body.newObject("PartDesign::Pocket", "Pocket010")
pocket11.Profile = sketch20
pocket11.Length = Q("0.135 in")
pocket11.Reversed = True

sketch21 = body.newObject("Sketcher::SketchObject", "Sketch020")
sketch21.AttachmentSupport = (doc.getObject("YZ_Plane"), [""])
sketch21.MapMode = "FlatFace"
sketch21.AttachmentOffset = App.Placement(App.Vector(0, 0, -48.3752), App.Rotation())
add_polygon(sketch21, [(0, -34.1), (0, -37.7), (68.6, -37.7), (68.6, -34.1)])
sketch21.addConstraint(Sketcher.Constraint("Vertical", 0))
sketch21.addConstraint(Sketcher.Constraint("Horizontal", 1))
sketch21.addConstraint(Sketcher.Constraint("Vertical", 2))
sketch21.addConstraint(Sketcher.Constraint("Horizontal", 3))
sketch21.addConstraint(Sketcher.Constraint("PointOnObject", 0, 2, -2))
sketch21.addConstraint(Sketcher.Constraint("DistanceX", 1, 1, 1, 2, Q("2.7 in")))
sketch21.addConstraint(Sketcher.Constraint("DistanceY", 0, 2, -1, 1, Q("1.485 in")))
sketch21.addConstraint(Sketcher.Constraint("DistanceY", 0, 2, 0, 1, Q("3.666 mm")))
pocket12 = body.newObject("PartDesign::Pocket", "Pocket011")
pocket12.Profile = sketch21
pocket12.Length = Q("0.093 in")

sketch22 = body.newObject("Sketcher::SketchObject", "Sketch021")
sketch22.AttachmentSupport = (doc.getObject("XZ_Plane"), [""])
sketch22.MapMode = "FlatFace"
add_polygon(sketch22, [(-35, -25), (-35, 25), (35, 25), (35, -25)])
sketch22.addConstraint(Sketcher.Constraint("Vertical", 0))
sketch22.addConstraint(Sketcher.Constraint("Horizontal", 1))
sketch22.addConstraint(Sketcher.Constraint("Vertical", 2))
sketch22.addConstraint(Sketcher.Constraint("Horizontal", 3))
sketch22.addConstraint(Sketcher.Constraint("Symmetric", 0, 2, 2, 2, -1, 1))
sketch22.addConstraint(Sketcher.Constraint("DistanceX", 1, 1, 1, 2, Q("2.75 in")))
sketch22.addConstraint(Sketcher.Constraint("DistanceY", 0, 1, 0, 2, Q("50.0398 mm")))
pocket13 = body.newObject("PartDesign::Pocket", "Pocket012")
pocket13.Profile = sketch22
pocket13.Length = Q("6.093 in")
pocket13.Reversed = True

sketch23 = body.newObject("Sketcher::SketchObject", "Sketch022")
sketch23.AttachmentSupport = (doc.getObject("YZ_Plane"), [""])
sketch23.MapMode = "FlatFace"
sketch23.AttachmentOffset = App.Placement(App.Vector(0, 0, 2 * 25.4), App.Rotation())
add_polygon(sketch23, [(13, 24), (57, 24), (57, -20), (13, -20)])
sketch23.addConstraint(Sketcher.Constraint("Horizontal", 0))
sketch23.addConstraint(Sketcher.Constraint("Vertical", 1))
sketch23.addConstraint(Sketcher.Constraint("Horizontal", 2))
sketch23.addConstraint(Sketcher.Constraint("Vertical", 3))
sketch23.addConstraint(Sketcher.Constraint("Equal", 2, 1))
sketch23.addConstraint(Sketcher.Constraint("DistanceX", 0, 1, 0, 2, Q("1.75 in")))
sketch23.addConstraint(Sketcher.Constraint("DistanceX", -1, 1, 2, 2, Q("0.5 in")))
sketch23.addConstraint(Sketcher.Constraint("DistanceY", -1, 1, 0, 2, Q("0.9525 in")))
pocket14 = body.newObject("PartDesign::Pocket", "Pocket013")
pocket14.Profile = sketch23
pocket14.Length = Q("6.093 in")
pocket14.Reversed = True

doc.recompute()
